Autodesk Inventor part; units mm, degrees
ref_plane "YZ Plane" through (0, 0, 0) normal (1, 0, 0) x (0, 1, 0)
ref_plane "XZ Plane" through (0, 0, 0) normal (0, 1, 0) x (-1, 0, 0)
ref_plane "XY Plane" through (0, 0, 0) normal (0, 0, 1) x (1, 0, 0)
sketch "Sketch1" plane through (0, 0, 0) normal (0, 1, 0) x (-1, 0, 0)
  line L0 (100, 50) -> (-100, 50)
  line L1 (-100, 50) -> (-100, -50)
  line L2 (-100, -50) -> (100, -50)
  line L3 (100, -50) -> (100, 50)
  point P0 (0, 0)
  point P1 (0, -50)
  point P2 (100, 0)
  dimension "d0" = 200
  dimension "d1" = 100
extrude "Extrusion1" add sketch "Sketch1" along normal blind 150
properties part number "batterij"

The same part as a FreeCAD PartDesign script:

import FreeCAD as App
import Part
import Sketcher
from FreeCAD import Vector
Q = App.Units.Quantity


def add_polygon(sketch, points):
    """Adds a closed chain of lines whose ends are joined by coincident constraints."""
    first, n = sketch.GeometryCount, len(points)
    for a, b in zip(points, points[1:] + points[:1]):
        sketch.addGeometry(Part.LineSegment(App.Vector(*a, 0), App.Vector(*b, 0)), False)
    for i in range(n):
        sketch.addConstraint(Sketcher.Constraint("Coincident", first + i, 2, first + (i + 1) % n, 1))

doc = App.newDocument("Part")
body = doc.addObject("PartDesign::Body", "Body")

sketch1 = body.newObject("Sketcher::SketchObject", "Sketch")
sketch1.AttachmentSupport = (doc.getObject("XZ_Plane"), [""])
sketch1.MapMode = "FlatFace"
add_polygon(sketch1, [(-100, -50), (-100, 50), (100, 50), (100, -50)])
sketch1.addConstraint([
    Sketcher.Constraint("Vertical", 0),
    Sketcher.Constraint("Horizontal", 1),
    Sketcher.Constraint("Vertical", 2),
    Sketcher.Constraint("Horizontal", 3),
    Sketcher.Constraint("Symmetric", 0, 2, 2, 2, -1, 1),
    Sketcher.Constraint("DistanceX", 1, 1, 1, 2, Q("200 mm")),
    Sketcher.Constraint("DistanceY", 0, 1, 0, 2, Q("100 mm")),
])
pad1 = body.newObject("PartDesign::Pad", "Pad")
pad1.Profile = sketch1
pad1.Length = 150
pad1.Reversed = True

doc.recompute()
